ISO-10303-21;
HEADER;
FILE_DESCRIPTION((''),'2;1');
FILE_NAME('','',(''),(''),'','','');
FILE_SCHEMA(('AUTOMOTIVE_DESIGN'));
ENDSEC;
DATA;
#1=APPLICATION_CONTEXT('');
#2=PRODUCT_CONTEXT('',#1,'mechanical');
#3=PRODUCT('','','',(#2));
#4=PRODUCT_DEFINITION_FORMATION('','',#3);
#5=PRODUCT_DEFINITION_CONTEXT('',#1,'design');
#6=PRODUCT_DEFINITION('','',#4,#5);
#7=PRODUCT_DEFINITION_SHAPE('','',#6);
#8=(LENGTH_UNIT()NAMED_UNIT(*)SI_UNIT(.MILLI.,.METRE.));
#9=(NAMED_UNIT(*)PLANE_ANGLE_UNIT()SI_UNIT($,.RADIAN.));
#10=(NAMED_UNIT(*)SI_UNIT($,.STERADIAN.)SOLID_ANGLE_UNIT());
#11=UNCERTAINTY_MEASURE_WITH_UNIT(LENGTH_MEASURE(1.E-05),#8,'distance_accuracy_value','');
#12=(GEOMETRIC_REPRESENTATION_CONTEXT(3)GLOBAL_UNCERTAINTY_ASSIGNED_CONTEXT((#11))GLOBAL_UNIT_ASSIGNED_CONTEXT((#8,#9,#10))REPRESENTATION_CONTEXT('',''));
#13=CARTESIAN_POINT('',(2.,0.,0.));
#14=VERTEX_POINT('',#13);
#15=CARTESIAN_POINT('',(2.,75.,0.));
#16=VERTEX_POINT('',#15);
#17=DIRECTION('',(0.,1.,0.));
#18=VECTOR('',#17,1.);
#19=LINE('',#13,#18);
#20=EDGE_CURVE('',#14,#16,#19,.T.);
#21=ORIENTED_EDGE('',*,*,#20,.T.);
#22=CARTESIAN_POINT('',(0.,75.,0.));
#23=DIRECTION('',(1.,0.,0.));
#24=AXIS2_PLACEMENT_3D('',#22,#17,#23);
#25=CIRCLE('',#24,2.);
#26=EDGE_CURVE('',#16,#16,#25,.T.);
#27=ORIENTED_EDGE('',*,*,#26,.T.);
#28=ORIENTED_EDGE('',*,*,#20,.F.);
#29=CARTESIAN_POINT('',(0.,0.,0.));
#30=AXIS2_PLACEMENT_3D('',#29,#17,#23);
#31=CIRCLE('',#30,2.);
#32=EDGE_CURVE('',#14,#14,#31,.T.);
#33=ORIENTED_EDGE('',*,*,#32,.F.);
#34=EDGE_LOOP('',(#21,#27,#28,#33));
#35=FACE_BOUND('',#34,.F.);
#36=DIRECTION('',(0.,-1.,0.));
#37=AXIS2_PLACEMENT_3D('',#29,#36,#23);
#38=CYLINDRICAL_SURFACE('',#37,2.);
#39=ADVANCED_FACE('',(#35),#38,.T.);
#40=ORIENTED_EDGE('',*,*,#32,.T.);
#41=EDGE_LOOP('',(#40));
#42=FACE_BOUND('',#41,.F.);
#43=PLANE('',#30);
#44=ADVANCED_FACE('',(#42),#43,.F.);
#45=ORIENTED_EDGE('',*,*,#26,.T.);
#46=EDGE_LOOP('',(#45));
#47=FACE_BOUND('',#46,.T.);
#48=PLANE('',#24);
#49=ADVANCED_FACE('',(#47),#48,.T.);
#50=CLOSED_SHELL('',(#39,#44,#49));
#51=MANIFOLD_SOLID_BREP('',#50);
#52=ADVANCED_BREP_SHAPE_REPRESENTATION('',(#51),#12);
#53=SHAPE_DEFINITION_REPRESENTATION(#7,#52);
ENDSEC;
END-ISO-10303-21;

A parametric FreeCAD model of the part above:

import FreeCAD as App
import Part
import Sketcher
from FreeCAD import Vector

doc = App.newDocument("Part")
body = doc.addObject("PartDesign::Body", "Body")

sketch1 = body.newObject("Sketcher::SketchObject", "Sketch")
sketch1.AttachmentSupport = (doc.getObject("XZ_Plane"), [""])
sketch1.MapMode = "FlatFace"
sketch1.addGeometry(Part.Circle(Vector(0, 0, 0), Vector(0, 0, 1), 2), False)
sketch1.addConstraint([
    Sketcher.Constraint("Coincident", 0, 3, -1, 1),
    Sketcher.Constraint("Diameter", 0, 4.0),
])
pad1 = body.newObject("PartDesign::Pad", "Pad")
pad1.Profile = sketch1
pad1.Length = 75
pad1.Reversed = True

doc.recompute()
